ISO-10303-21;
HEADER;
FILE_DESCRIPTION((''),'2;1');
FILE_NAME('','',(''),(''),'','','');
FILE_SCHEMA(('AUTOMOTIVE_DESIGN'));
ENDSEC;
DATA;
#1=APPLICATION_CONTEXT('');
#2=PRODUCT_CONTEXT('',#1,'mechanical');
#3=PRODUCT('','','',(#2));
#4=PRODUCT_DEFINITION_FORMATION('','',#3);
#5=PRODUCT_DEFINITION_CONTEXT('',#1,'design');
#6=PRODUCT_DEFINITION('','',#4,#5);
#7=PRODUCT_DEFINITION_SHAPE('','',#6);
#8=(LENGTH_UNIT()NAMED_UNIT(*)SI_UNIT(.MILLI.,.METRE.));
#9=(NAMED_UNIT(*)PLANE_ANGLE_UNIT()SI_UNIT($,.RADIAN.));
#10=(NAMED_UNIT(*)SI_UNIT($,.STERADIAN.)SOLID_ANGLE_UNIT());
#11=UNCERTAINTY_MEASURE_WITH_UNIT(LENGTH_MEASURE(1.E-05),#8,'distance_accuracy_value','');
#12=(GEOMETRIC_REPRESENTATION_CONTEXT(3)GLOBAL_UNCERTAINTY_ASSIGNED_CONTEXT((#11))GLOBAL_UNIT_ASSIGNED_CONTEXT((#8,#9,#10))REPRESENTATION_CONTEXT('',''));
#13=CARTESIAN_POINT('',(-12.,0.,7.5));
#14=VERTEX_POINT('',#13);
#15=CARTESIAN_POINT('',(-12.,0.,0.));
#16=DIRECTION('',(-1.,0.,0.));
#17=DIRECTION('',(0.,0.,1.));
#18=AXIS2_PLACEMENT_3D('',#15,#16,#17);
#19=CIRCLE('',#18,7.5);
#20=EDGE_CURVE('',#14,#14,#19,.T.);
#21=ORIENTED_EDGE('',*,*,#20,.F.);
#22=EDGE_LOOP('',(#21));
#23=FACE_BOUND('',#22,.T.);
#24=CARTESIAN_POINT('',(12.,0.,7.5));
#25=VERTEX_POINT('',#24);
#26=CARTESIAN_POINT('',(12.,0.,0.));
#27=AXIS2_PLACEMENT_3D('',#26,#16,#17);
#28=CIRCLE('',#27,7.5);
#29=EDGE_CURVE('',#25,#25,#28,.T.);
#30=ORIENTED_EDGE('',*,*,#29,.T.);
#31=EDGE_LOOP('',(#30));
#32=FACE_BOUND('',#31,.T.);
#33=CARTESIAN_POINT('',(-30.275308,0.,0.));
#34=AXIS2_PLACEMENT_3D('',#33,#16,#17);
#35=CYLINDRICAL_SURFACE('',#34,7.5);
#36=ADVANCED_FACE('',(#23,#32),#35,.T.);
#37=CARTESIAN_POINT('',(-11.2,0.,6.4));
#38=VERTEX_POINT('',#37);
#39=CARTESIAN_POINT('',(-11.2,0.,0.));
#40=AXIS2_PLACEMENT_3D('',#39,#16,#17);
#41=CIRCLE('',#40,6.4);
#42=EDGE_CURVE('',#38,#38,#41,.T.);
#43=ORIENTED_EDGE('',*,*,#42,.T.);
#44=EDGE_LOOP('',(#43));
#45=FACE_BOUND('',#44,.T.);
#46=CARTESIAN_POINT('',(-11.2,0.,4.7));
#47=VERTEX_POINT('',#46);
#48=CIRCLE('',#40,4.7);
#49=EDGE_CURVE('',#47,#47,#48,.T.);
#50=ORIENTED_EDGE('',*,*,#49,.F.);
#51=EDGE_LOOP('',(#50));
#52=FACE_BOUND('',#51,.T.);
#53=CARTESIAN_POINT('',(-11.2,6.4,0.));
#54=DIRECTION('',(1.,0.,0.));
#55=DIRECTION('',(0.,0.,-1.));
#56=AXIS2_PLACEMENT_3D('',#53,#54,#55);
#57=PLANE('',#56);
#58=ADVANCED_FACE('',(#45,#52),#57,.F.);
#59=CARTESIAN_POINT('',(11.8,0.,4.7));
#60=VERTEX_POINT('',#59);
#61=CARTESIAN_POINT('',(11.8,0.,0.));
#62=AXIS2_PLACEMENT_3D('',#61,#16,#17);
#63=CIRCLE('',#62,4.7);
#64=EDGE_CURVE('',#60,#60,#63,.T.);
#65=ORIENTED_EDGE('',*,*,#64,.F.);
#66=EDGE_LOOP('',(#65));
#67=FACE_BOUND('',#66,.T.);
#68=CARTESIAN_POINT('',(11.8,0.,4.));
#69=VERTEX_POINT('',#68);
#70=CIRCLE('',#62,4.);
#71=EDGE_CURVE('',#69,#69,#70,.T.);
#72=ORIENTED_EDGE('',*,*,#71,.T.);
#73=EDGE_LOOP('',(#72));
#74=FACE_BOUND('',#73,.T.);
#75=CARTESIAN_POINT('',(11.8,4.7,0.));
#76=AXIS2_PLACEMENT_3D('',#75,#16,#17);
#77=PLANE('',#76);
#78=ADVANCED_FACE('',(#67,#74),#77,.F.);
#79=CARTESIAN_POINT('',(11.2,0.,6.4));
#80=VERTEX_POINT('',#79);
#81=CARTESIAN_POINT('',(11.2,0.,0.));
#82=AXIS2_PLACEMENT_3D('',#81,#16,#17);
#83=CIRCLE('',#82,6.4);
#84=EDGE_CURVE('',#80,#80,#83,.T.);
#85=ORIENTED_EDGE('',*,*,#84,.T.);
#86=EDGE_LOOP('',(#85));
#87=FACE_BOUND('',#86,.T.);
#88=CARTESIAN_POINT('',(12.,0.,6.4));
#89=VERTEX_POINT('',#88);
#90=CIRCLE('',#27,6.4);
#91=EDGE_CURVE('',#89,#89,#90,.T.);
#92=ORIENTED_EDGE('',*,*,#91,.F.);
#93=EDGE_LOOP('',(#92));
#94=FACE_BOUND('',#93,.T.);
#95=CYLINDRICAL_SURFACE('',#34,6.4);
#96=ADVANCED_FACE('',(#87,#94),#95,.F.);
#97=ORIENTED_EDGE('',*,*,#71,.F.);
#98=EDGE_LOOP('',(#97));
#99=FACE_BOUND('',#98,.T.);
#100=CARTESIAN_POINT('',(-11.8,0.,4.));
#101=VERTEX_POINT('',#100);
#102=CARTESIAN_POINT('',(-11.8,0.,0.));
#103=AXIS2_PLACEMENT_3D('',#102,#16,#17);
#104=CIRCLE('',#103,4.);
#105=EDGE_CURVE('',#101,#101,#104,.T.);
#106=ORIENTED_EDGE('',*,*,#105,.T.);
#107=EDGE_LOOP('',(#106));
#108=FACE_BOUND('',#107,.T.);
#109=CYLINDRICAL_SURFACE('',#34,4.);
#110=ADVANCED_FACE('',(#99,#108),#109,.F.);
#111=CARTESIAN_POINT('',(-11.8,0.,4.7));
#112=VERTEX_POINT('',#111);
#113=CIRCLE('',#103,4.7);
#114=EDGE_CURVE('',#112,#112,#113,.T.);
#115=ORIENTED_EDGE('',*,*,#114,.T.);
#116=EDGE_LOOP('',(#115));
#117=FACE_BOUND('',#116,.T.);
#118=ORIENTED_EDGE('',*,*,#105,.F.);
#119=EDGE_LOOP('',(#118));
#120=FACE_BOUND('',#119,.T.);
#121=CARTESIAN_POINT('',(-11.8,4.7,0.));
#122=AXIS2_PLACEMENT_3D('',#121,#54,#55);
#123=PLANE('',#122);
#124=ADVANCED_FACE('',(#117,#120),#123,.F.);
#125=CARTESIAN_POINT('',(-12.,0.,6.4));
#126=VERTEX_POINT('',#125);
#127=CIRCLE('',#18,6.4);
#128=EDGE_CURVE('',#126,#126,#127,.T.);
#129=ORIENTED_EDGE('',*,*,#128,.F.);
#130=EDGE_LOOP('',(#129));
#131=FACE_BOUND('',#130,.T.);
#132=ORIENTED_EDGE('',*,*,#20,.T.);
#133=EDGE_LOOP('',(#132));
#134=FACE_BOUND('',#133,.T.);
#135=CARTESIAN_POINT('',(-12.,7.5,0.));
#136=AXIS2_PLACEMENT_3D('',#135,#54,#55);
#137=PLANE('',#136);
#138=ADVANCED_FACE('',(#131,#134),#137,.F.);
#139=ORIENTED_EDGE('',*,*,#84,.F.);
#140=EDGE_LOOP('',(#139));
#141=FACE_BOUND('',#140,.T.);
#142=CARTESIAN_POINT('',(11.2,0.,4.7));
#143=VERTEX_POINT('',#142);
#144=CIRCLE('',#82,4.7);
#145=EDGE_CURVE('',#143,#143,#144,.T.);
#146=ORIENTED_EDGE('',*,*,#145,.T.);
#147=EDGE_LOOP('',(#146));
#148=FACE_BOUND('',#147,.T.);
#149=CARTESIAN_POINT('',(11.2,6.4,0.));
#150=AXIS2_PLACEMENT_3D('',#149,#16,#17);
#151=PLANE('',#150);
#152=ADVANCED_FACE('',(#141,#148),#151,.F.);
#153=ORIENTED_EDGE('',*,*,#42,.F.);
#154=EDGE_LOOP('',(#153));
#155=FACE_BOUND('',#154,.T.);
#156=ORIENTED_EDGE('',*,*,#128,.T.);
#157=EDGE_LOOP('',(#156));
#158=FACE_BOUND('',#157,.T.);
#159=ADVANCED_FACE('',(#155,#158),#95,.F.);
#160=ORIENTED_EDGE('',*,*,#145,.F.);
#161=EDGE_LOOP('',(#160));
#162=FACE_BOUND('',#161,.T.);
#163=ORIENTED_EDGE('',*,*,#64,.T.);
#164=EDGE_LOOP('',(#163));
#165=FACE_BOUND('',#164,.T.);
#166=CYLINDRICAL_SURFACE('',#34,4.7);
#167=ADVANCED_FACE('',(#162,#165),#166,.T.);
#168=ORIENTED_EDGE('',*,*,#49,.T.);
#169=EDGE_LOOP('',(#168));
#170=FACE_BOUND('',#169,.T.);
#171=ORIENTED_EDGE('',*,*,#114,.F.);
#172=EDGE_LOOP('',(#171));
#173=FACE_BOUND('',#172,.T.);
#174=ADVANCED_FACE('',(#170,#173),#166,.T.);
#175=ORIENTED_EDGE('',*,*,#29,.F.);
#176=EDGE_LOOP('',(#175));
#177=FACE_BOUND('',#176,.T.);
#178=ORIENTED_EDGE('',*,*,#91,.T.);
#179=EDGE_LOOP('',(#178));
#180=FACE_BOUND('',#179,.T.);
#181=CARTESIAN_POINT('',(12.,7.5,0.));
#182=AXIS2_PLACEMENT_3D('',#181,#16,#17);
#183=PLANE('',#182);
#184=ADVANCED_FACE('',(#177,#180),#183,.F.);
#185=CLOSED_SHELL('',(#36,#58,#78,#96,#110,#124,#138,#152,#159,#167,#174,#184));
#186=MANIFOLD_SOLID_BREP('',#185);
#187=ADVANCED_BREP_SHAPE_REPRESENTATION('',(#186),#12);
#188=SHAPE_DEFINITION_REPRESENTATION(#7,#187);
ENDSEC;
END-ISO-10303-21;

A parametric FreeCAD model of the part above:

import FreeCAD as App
import Part
import Sketcher

V = App.Vector

doc = App.newDocument("Part")
body = doc.addObject("PartDesign::Body", "Body")

# Sketch on XY plane
sketch1 = body.newObject("Sketcher::SketchObject", "Sketch")
sketch1.AttachmentSupport = (doc.getObject("XY_Plane"), [""])
sketch1.MapMode = "FlatFace"
sketch1.addGeometry(Part.LineSegment(V(12, 7.5, 0), V(-12, 7.5, 0)), False)
sketch1.addGeometry(Part.LineSegment(V(-12, 7.5, 0), V(-12, 6.4, 0)), False)
sketch1.addGeometry(Part.LineSegment(V(-12, 6.4, 0), V(-11.2, 6.4, 0)), False)
sketch1.addGeometry(Part.LineSegment(V(-11.2, 6.4, 0), V(-11.2, 4.7, 0)), False)
sketch1.addGeometry(Part.LineSegment(V(-11.2, 4.7, 0), V(-11.8, 4.7, 0)), False)
sketch1.addGeometry(Part.LineSegment(V(-11.8, 4.7, 0), V(-11.8, 4, 0)), False)
sketch1.addGeometry(Part.LineSegment(V(-11.8, 4, 0), V(11.8, 4, 0)), False)
sketch1.addGeometry(Part.LineSegment(V(11.8, 4, 0), V(11.8, 4.7, 0)), False)
sketch1.addGeometry(Part.LineSegment(V(11.8, 4.7, 0), V(11.2, 4.7, 0)), False)
sketch1.addGeometry(Part.LineSegment(V(11.2, 4.7, 0), V(11.2, 6.4, 0)), False)
sketch1.addGeometry(Part.LineSegment(V(11.2, 6.4, 0), V(12, 6.4, 0)), False)
sketch1.addGeometry(Part.LineSegment(V(12, 6.4, 0), V(12, 7.5, 0)), False)
sketch1.addConstraint(Sketcher.Constraint("Coincident", 0, 2, 1, 1))
sketch1.addConstraint(Sketcher.Constraint("Coincident", 1, 2, 2, 1))
sketch1.addConstraint(Sketcher.Constraint("Coincident", 2, 2, 3, 1))
sketch1.addConstraint(Sketcher.Constraint("Coincident", 3, 2, 4, 1))
sketch1.addConstraint(Sketcher.Constraint("Coincident", 4, 2, 5, 1))
sketch1.addConstraint(Sketcher.Constraint("Coincident", 5, 2, 6, 1))
sketch1.addConstraint(Sketcher.Constraint("Coincident", 6, 2, 7, 1))
sketch1.addConstraint(Sketcher.Constraint("Coincident", 7, 2, 8, 1))
sketch1.addConstraint(Sketcher.Constraint("Coincident", 8, 2, 9, 1))
sketch1.addConstraint(Sketcher.Constraint("Coincident", 9, 2, 10, 1))
sketch1.addConstraint(Sketcher.Constraint("Coincident", 10, 2, 11, 1))
sketch1.addConstraint(Sketcher.Constraint("Coincident", 11, 2, 0, 1))
sketch1.addConstraint(Sketcher.Constraint("Horizontal", 0))
sketch1.addConstraint(Sketcher.Constraint("Vertical", 1))
sketch1.addConstraint(Sketcher.Constraint("Horizontal", 2))
sketch1.addConstraint(Sketcher.Constraint("Vertical", 3))
sketch1.addConstraint(Sketcher.Constraint("Horizontal", 4))
sketch1.addConstraint(Sketcher.Constraint("Vertical", 5))
sketch1.addConstraint(Sketcher.Constraint("Horizontal", 6))
sketch1.addConstraint(Sketcher.Constraint("Vertical", 7))
sketch1.addConstraint(Sketcher.Constraint("Horizontal", 8))
sketch1.addConstraint(Sketcher.Constraint("Vertical", 9))
sketch1.addConstraint(Sketcher.Constraint("Horizontal", 10))
sketch1.addConstraint(Sketcher.Constraint("Vertical", 11))
sketch1.addConstraint(Sketcher.Constraint("Symmetric", 4, 2, 7, 2, -2))
sketch1.addConstraint(Sketcher.Constraint("Symmetric", 2, 2, 9, 2, -2))
sketch1.addConstraint(Sketcher.Constraint("Equal", 2, 10))
sketch1.addConstraint(Sketcher.Constraint("DistanceX", 0, 2, 0, 1, 24.0))
sketch1.addConstraint(Sketcher.Constraint("DistanceX", 2, 1, 2, 2, 0.8))
sketch1.addConstraint(Sketcher.Constraint("DistanceX", 4, 2, 4, 1, 0.6))
sketch1.addConstraint(Sketcher.Constraint("DistanceY", 1, 2, 1, 1, 1.1))
sketch1.addConstraint(Sketcher.Constraint("DistanceY", 3, 2, 3, 1, 1.7))
sketch1.addConstraint(Sketcher.Constraint("DistanceY", 5, 2, 5, 1, 0.7))
sketch1.addConstraint(Sketcher.Constraint("DistanceY", -1, 1, 5, 2, 4.0))
revolution = body.newObject("PartDesign::Revolution", "Revolution")
revolution.Profile = sketch1
revolution.ReferenceAxis = (sketch1, ["H_Axis"])
revolution.Angle = 360

doc.recompute()
